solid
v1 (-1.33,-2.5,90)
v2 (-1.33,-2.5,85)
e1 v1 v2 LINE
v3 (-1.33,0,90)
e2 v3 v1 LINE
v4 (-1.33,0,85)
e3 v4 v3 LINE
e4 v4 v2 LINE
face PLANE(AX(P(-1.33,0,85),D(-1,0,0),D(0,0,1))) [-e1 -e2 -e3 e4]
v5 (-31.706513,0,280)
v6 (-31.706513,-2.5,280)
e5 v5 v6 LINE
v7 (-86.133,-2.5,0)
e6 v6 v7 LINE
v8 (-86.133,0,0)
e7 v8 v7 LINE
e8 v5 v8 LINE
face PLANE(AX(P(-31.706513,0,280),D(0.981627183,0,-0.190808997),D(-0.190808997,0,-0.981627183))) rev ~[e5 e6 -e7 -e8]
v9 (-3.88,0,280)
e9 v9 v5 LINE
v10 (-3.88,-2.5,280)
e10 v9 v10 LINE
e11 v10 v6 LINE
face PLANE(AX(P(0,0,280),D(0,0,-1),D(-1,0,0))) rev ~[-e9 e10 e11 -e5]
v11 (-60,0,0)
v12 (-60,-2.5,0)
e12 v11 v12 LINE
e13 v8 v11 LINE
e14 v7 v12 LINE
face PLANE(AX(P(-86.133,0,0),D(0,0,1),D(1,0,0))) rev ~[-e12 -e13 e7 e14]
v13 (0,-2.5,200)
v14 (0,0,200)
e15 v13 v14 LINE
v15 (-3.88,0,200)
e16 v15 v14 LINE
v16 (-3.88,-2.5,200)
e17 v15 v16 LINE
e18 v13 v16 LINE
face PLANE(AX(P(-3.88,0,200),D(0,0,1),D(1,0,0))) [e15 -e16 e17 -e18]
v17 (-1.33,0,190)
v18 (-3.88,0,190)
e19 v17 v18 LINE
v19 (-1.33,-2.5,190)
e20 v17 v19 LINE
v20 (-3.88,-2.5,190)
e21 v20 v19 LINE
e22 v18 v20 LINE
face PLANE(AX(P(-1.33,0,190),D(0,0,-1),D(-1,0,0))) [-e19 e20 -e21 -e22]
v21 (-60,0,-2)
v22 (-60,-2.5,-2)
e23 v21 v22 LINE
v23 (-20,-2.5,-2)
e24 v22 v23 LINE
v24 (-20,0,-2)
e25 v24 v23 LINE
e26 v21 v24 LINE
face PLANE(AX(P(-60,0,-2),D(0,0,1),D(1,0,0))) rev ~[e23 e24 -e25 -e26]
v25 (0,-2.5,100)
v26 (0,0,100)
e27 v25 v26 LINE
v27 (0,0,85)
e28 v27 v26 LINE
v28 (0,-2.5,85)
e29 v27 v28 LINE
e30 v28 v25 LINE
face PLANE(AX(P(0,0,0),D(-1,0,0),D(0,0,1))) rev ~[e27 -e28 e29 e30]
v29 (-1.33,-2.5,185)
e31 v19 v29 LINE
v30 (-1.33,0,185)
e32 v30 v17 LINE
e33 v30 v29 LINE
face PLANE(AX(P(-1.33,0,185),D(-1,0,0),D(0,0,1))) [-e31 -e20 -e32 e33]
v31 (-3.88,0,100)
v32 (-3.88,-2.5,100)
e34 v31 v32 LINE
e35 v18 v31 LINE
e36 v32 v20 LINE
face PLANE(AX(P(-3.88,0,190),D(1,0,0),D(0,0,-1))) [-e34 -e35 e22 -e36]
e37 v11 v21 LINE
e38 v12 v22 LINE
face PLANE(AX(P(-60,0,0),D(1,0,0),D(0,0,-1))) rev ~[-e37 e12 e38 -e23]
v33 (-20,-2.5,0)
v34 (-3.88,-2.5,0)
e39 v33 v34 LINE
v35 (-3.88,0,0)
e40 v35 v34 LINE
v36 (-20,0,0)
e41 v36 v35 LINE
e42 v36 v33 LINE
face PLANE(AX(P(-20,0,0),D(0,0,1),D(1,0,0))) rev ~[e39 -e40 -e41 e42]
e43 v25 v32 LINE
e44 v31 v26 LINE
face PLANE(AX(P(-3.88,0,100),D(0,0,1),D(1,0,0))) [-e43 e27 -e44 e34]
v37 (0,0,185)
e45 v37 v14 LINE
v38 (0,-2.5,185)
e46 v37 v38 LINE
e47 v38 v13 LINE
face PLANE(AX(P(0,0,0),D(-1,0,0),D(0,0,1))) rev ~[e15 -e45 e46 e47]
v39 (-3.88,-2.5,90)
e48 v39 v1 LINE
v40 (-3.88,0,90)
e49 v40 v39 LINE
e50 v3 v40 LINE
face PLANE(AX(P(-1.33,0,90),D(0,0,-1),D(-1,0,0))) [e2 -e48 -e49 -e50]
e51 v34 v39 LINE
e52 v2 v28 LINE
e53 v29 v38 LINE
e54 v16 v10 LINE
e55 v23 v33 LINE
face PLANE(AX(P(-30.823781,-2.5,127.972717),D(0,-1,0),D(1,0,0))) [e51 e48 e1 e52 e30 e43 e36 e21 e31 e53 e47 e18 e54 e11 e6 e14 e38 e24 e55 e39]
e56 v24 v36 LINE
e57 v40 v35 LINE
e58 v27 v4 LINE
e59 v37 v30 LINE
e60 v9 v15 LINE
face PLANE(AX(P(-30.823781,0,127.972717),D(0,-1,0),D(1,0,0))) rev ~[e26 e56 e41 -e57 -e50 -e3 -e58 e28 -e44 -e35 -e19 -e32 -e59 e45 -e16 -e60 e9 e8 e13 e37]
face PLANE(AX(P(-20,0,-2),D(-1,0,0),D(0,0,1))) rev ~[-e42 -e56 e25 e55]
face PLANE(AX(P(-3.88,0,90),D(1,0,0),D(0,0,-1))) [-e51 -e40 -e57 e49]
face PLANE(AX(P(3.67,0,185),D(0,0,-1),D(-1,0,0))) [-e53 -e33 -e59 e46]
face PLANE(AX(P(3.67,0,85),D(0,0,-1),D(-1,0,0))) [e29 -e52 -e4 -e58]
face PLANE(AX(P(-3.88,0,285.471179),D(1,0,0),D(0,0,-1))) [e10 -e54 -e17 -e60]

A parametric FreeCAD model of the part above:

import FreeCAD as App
import Part
import Sketcher
Q = App.Units.Quantity

doc = App.newDocument("Part")
body = doc.addObject("PartDesign::Body", "Body")

# Sketch on XZ plane
sketch1 = doc.addObject("Sketcher::SketchObject", "Sketch")
body.addObject(sketch1)
sketch1.AttachmentSupport = (doc.XZ_Plane, [""])
sketch1.MapMode = "FlatFace"
sketch1.addGeometry([
    Part.LineSegment(App.Vector(-31.706513, 280, 0), App.Vector(-86.133, 0, 0)),  # 0
    Part.LineSegment(App.Vector(-86.133, 0, 0), App.Vector(-60, 0, 0)),  # 1
    Part.LineSegment(App.Vector(-60, 0, 0), App.Vector(-60, -2, 0)),  # 2
    Part.LineSegment(App.Vector(-60, -2, 0), App.Vector(-20, -2, 0)),  # 3
    Part.LineSegment(App.Vector(-20, -2, 0), App.Vector(-20, 0, 0)),  # 4
    Part.LineSegment(App.Vector(-20, 0, 0), App.Vector(0, 0, 0)),  # 5
    Part.LineSegment(App.Vector(0, 0, 0), App.Vector(0, 280, 0)),  # 6
    Part.LineSegment(App.Vector(0, 280, 0), App.Vector(-31.706513, 280, 0)),  # 7
], False)
sketch1.addConstraint([
    Sketcher.Constraint("Coincident", 0, 2, 1, 1),
    Sketcher.Constraint("Coincident", 1, 2, 2, 1),
    Sketcher.Constraint("Coincident", 2, 2, 3, 1),
    Sketcher.Constraint("Coincident", 3, 2, 4, 1),
    Sketcher.Constraint("Coincident", 4, 2, 5, 1),
    Sketcher.Constraint("Coincident", 5, 2, 6, 1),
    Sketcher.Constraint("Coincident", 6, 2, 7, 1),
    Sketcher.Constraint("Coincident", 7, 2, 0, 1),
    Sketcher.Constraint("Horizontal", 1),
    Sketcher.Constraint("Vertical", 2),
    Sketcher.Constraint("Horizontal", 3),
    Sketcher.Constraint("Vertical", 4),
    Sketcher.Constraint("Horizontal", 5),
    Sketcher.Constraint("Vertical", 6),
    Sketcher.Constraint("Horizontal", 7),
    Sketcher.Constraint("Coincident", 5, 2, -1, 1),
    Sketcher.Constraint("PointOnObject", 0, 2, -1),
    Sketcher.Constraint("DistanceX", 3, 1, 3, 2, 40.0),
    Sketcher.Constraint("DistanceX", 5, 1, 5, 2, 20.0),
    Sketcher.Constraint("DistanceY", 2, 2, 2, 1, 2.0),
    Sketcher.Constraint("DistanceY", 6, 1, 6, 2, 280.0),
    Sketcher.Constraint("Angle", 0, Q("-101 deg")),
    Sketcher.Constraint("DistanceX", 1, 1, 1, 2, 26.133),
])
pad1 = doc.addObject("PartDesign::Pad", "Pad")
body.addObject(pad1)
pad1.Profile = sketch1
pad1.Length = 2.5

# Sketch on XZ plane
sketch2 = doc.addObject("Sketcher::SketchObject", "Sketch001")
body.addObject(sketch2)
sketch2.AttachmentSupport = (doc.XZ_Plane, [""])
sketch2.MapMode = "FlatFace"
sketch2.addGeometry([
    Part.LineSegment(App.Vector(25.523714, 0, 0), App.Vector(25.523714, 285.471179, 0)),  # 0
    Part.LineSegment(App.Vector(25.523714, 285.471179, 0), App.Vector(-3.88, 285.471179, 0)),  # 1
    Part.LineSegment(App.Vector(-3.88, 285.471179, 0), App.Vector(-3.88, 200, 0)),  # 2
    Part.LineSegment(App.Vector(-3.88, 200, 0), App.Vector(3.67, 200, 0)),  # 3
    Part.LineSegment(App.Vector(3.67, 200, 0), App.Vector(3.67, 185, 0)),  # 4
    Part.LineSegment(App.Vector(3.67, 185, 0), App.Vector(-1.33, 185, 0)),  # 5
    Part.LineSegment(App.Vector(-1.33, 185, 0), App.Vector(-1.33, 190, 0)),  # 6
    Part.LineSegment(App.Vector(-1.33, 190, 0), App.Vector(-3.88, 190, 0)),  # 7
    Part.LineSegment(App.Vector(-3.88, 190, 0), App.Vector(-3.88, 100, 0)),  # 8
    Part.LineSegment(App.Vector(-3.88, 100, 0), App.Vector(3.67, 100, 0)),  # 9
    Part.LineSegment(App.Vector(3.67, 100, 0), App.Vector(3.67, 85, 0)),  # 10
    Part.LineSegment(App.Vector(3.67, 85, 0), App.Vector(-1.33, 85, 0)),  # 11
    Part.LineSegment(App.Vector(-1.33, 85, 0), App.Vector(-1.33, 90, 0)),  # 12
    Part.LineSegment(App.Vector(-1.33, 90, 0), App.Vector(-3.88, 90, 0)),  # 13
    Part.LineSegment(App.Vector(-3.88, 90, 0), App.Vector(-3.88, 0, 0)),  # 14
    Part.LineSegment(App.Vector(-3.88, 0, 0), App.Vector(25.523714, 0, 0)),  # 15
], False)
sketch2.addConstraint([
    Sketcher.Constraint("Coincident", 0, 2, 1, 1),
    Sketcher.Constraint("Coincident", 1, 2, 2, 1),
    Sketcher.Constraint("Coincident", 2, 2, 3, 1),
    Sketcher.Constraint("Coincident", 3, 2, 4, 1),
    Sketcher.Constraint("Coincident", 4, 2, 5, 1),
    Sketcher.Constraint("Coincident", 5, 2, 6, 1),
    Sketcher.Constraint("Coincident", 6, 2, 7, 1),
    Sketcher.Constraint("Coincident", 7, 2, 8, 1),
    Sketcher.Constraint("Coincident", 8, 2, 9, 1),
    Sketcher.Constraint("Coincident", 9, 2, 10, 1),
    Sketcher.Constraint("Coincident", 10, 2, 11, 1),
    Sketcher.Constraint("Coincident", 11, 2, 12, 1),
    Sketcher.Constraint("Coincident", 12, 2, 13, 1),
    Sketcher.Constraint("Coincident", 13, 2, 14, 1),
    Sketcher.Constraint("Coincident", 14, 2, 15, 1),
    Sketcher.Constraint("Coincident", 15, 2, 0, 1),
    Sketcher.Constraint("Vertical", 0),
    Sketcher.Constraint("Horizontal", 1),
    Sketcher.Constraint("Vertical", 2),
    Sketcher.Constraint("Horizontal", 3),
    Sketcher.Constraint("Vertical", 4),
    Sketcher.Constraint("Horizontal", 5),
    Sketcher.Constraint("Vertical", 6),
    Sketcher.Constraint("Horizontal", 7),
    Sketcher.Constraint("Vertical", 8),
    Sketcher.Constraint("Horizontal", 9),
    Sketcher.Constraint("Vertical", 10),
    Sketcher.Constraint("Horizontal", 11),
    Sketcher.Constraint("Vertical", 12),
    Sketcher.Constraint("Horizontal", 13),
    Sketcher.Constraint("Vertical", 14),
    Sketcher.Constraint("Horizontal", 15),
    Sketcher.Constraint("PointOnObject", 14, 2, -1),
    Sketcher.Constraint("Vertical", 2, 2, 7, 2),
    Sketcher.Constraint("Vertical", 4, 2, 9, 2),
    Sketcher.Constraint("Vertical", 6, 2, 11, 2),
    Sketcher.Constraint("Vertical", 8, 2, 13, 2),
    Sketcher.Constraint("Equal", 11, 6),
    Sketcher.Constraint("Equal", 4, 10),
    Sketcher.Constraint("Equal", 6, 12),
    Sketcher.Constraint("Equal", 8, 14),
    Sketcher.Constraint("DistanceX", 5, 2, 5, 1, 5.0),
    Sketcher.Constraint("DistanceY", 4, 2, 4, 1, 15.0),
    Sketcher.Constraint("DistanceY", 8, 2, 8, 1, 90.0),
    Sketcher.Constraint("DistanceX", 3, 1, 3, 2, 7.55),
    Sketcher.Constraint("DistanceX", 1, 2, -1, 1, 3.88),
    Sketcher.Constraint("DistanceY", 0, 1, 0, 2, 285.471179),
    Sketcher.Constraint("DistanceX", 1, 2, 1, 1, 29.403714),
])
pocket1 = doc.addObject("PartDesign::Pocket", "Pocket")
body.addObject(pocket1)
pocket1.Profile = sketch2
pocket1.Length = 25
pocket1.Reversed = True

doc.recompute()
